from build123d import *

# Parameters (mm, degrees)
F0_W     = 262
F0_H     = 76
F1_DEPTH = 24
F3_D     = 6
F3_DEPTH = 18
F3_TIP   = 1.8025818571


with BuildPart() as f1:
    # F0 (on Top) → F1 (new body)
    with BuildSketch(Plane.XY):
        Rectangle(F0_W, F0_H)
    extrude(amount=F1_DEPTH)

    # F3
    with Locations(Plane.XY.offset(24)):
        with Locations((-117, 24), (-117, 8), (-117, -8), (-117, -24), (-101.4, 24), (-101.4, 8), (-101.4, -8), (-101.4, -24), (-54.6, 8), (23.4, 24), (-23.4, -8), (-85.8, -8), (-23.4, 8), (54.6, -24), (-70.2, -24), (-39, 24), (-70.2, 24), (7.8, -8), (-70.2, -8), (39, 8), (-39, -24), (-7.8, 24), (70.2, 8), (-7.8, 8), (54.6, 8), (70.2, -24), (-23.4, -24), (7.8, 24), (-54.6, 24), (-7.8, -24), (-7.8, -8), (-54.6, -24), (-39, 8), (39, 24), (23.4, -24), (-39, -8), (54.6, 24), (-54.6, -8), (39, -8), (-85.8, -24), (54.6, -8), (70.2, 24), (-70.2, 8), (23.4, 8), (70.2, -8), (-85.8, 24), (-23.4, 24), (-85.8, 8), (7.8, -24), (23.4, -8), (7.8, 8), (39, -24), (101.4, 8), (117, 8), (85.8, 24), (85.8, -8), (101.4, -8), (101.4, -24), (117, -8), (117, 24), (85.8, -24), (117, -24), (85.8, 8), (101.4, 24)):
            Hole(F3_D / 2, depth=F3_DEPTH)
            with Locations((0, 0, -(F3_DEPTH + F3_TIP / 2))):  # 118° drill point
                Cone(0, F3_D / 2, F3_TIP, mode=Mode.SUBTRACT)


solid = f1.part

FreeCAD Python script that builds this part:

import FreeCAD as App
import Part
import Sketcher
from FreeCAD import Vector
Q = App.Units.Quantity

doc = App.newDocument("Part")
body = doc.addObject("PartDesign::Body", "Body")

# Sketch on XY plane
sketch1 = body.newObject("Sketcher::SketchObject", "Sketch")
sketch1.AttachmentSupport = (doc.getObject("XY_Plane"), [""])
sketch1.MapMode = "FlatFace"
sketch1.addGeometry(Part.LineSegment(Vector(-131, 38, 0), Vector(-131, -38, 0)), False)
sketch1.addGeometry(Part.LineSegment(Vector(-131, -38, 0), Vector(131, -38, 0)), False)
sketch1.addGeometry(Part.LineSegment(Vector(131, -38, 0), Vector(131, 38, 0)), False)
sketch1.addGeometry(Part.LineSegment(Vector(131, 38, 0), Vector(-131, 38, 0)), False)
sketch1.addConstraint(Sketcher.Constraint("Coincident", 0, 2, 1, 1))
sketch1.addConstraint(Sketcher.Constraint("Coincident", 1, 2, 2, 1))
sketch1.addConstraint(Sketcher.Constraint("Coincident", 2, 2, 3, 1))
sketch1.addConstraint(Sketcher.Constraint("Coincident", 3, 2, 0, 1))
sketch1.addConstraint(Sketcher.Constraint("Vertical", 0))
sketch1.addConstraint(Sketcher.Constraint("Horizontal", 1))
sketch1.addConstraint(Sketcher.Constraint("Vertical", 2))
sketch1.addConstraint(Sketcher.Constraint("Horizontal", 3))
sketch1.addConstraint(Sketcher.Constraint("Symmetric", 0, 2, 2, 2, -1, 1))
sketch1.addConstraint(Sketcher.Constraint("DistanceX", 1, 1, 1, 2, Q("262 mm")))
sketch1.addConstraint(Sketcher.Constraint("DistanceY", 0, 2, 0, 1, Q("76 mm")))
pad1 = body.newObject("PartDesign::Pad", "Pad")
pad1.Profile = sketch1
pad1.Length = 24

# Sketch on XY plane
sketch2 = body.newObject("Sketcher::SketchObject", "Sketch001")
sketch2.AttachmentSupport = (doc.getObject("XY_Plane"), [""])
sketch2.MapMode = "FlatFace"
sketch2.AttachmentOffset = App.Placement(Vector(0, 0, 24), App.Rotation())
sketch2.addGeometry(Part.Circle(Vector(-117, 24, 0), Vector(0, 0, 1), 3), False)
sketch2.addGeometry(Part.Circle(Vector(-117, 8, 0), Vector(0, 0, 1), 3), False)
sketch2.addGeometry(Part.Circle(Vector(-117, -8, 0), Vector(0, 0, 1), 3), False)
sketch2.addGeometry(Part.Circle(Vector(-117, -24, 0), Vector(0, 0, 1), 3), False)
sketch2.addGeometry(Part.Circle(Vector(-101.4, 24, 0), Vector(0, 0, 1), 3), False)
sketch2.addGeometry(Part.Circle(Vector(-101.4, 8, 0), Vector(0, 0, 1), 3), False)
sketch2.addGeometry(Part.Circle(Vector(-101.4, -8, 0), Vector(0, 0, 1), 3), False)
sketch2.addGeometry(Part.Circle(Vector(-101.4, -24, 0), Vector(0, 0, 1), 3), False)
sketch2.addGeometry(Part.Circle(Vector(-54.6, 8, 0), Vector(0, 0, 1), 3), False)
sketch2.addGeometry(Part.Circle(Vector(23.4, 24, 0), Vector(0, 0, 1), 3), False)
sketch2.addGeometry(Part.Circle(Vector(-23.4, -8, 0), Vector(0, 0, 1), 3), False)
sketch2.addGeometry(Part.Circle(Vector(-85.8, -8, 0), Vector(0, 0, 1), 3), False)
sketch2.addGeometry(Part.Circle(Vector(-23.4, 8, 0), Vector(0, 0, 1), 3), False)
sketch2.addGeometry(Part.Circle(Vector(54.6, -24, 0), Vector(0, 0, 1), 3), False)
sketch2.addGeometry(Part.Circle(Vector(-70.2, -24, 0), Vector(0, 0, 1), 3), False)
sketch2.addGeometry(Part.Circle(Vector(-39, 24, 0), Vector(0, 0, 1), 3), False)
sketch2.addGeometry(Part.Circle(Vector(-70.2, 24, 0), Vector(0, 0, 1), 3), False)
sketch2.addGeometry(Part.Circle(Vector(7.8, -8, 0), Vector(0, 0, 1), 3), False)
sketch2.addGeometry(Part.Circle(Vector(-70.2, -8, 0), Vector(0, 0, 1), 3), False)
sketch2.addGeometry(Part.Circle(Vector(39, 8, 0), Vector(0, 0, 1), 3), False)
sketch2.addGeometry(Part.Circle(Vector(-39, -24, 0), Vector(0, 0, 1), 3), False)
sketch2.addGeometry(Part.Circle(Vector(-7.8, 24, 0), Vector(0, 0, 1), 3), False)
sketch2.addGeometry(Part.Circle(Vector(70.2, 8, 0), Vector(0, 0, 1), 3), False)
sketch2.addGeometry(Part.Circle(Vector(-7.8, 8, 0), Vector(0, 0, 1), 3), False)
sketch2.addGeometry(Part.Circle(Vector(54.6, 8, 0), Vector(0, 0, 1), 3), False)
sketch2.addGeometry(Part.Circle(Vector(70.2, -24, 0), Vector(0, 0, 1), 3), False)
sketch2.addGeometry(Part.Circle(Vector(-23.4, -24, 0), Vector(0, 0, 1), 3), False)
sketch2.addGeometry(Part.Circle(Vector(7.8, 24, 0), Vector(0, 0, 1), 3), False)
sketch2.addGeometry(Part.Circle(Vector(-54.6, 24, 0), Vector(0, 0, 1), 3), False)
sketch2.addGeometry(Part.Circle(Vector(-7.8, -24, 0), Vector(0, 0, 1), 3), False)
sketch2.addGeometry(Part.Circle(Vector(-7.8, -8, 0), Vector(0, 0, 1), 3), False)
sketch2.addGeometry(Part.Circle(Vector(-54.6, -24, 0), Vector(0, 0, 1), 3), False)
sketch2.addGeometry(Part.Circle(Vector(-39, 8, 0), Vector(0, 0, 1), 3), False)
sketch2.addGeometry(Part.Circle(Vector(39, 24, 0), Vector(0, 0, 1), 3), False)
sketch2.addGeometry(Part.Circle(Vector(23.4, -24, 0), Vector(0, 0, 1), 3), False)
sketch2.addGeometry(Part.Circle(Vector(-39, -8, 0), Vector(0, 0, 1), 3), False)
sketch2.addGeometry(Part.Circle(Vector(54.6, 24, 0), Vector(0, 0, 1), 3), False)
sketch2.addGeometry(Part.Circle(Vector(-54.6, -8, 0), Vector(0, 0, 1), 3), False)
sketch2.addGeometry(Part.Circle(Vector(39, -8, 0), Vector(0, 0, 1), 3), False)
sketch2.addGeometry(Part.Circle(Vector(-85.8, -24, 0), Vector(0, 0, 1), 3), False)
sketch2.addGeometry(Part.Circle(Vector(54.6, -8, 0), Vector(0, 0, 1), 3), False)
sketch2.addGeometry(Part.Circle(Vector(70.2, 24, 0), Vector(0, 0, 1), 3), False)
sketch2.addGeometry(Part.Circle(Vector(-70.2, 8, 0), Vector(0, 0, 1), 3), False)
sketch2.addGeometry(Part.Circle(Vector(23.4, 8, 0), Vector(0, 0, 1), 3), False)
sketch2.addGeometry(Part.Circle(Vector(70.2, -8, 0), Vector(0, 0, 1), 3), False)
sketch2.addGeometry(Part.Circle(Vector(-85.8, 24, 0), Vector(0, 0, 1), 3), False)
sketch2.addGeometry(Part.Circle(Vector(-23.4, 24, 0), Vector(0, 0, 1), 3), False)
sketch2.addGeometry(Part.Circle(Vector(-85.8, 8, 0), Vector(0, 0, 1), 3), False)
sketch2.addGeometry(Part.Circle(Vector(7.8, -24, 0), Vector(0, 0, 1), 3), False)
sketch2.addGeometry(Part.Circle(Vector(23.4, -8, 0), Vector(0, 0, 1), 3), False)
sketch2.addGeometry(Part.Circle(Vector(7.8, 8, 0), Vector(0, 0, 1), 3), False)
sketch2.addGeometry(Part.Circle(Vector(39, -24, 0), Vector(0, 0, 1), 3), False)
sketch2.addGeometry(Part.Circle(Vector(101.4, 8, 0), Vector(0, 0, 1), 3), False)
sketch2.addGeometry(Part.Circle(Vector(117, 8, 0), Vector(0, 0, 1), 3), False)
sketch2.addGeometry(Part.Circle(Vector(85.8, 24, 0), Vector(0, 0, 1), 3), False)
sketch2.addGeometry(Part.Circle(Vector(85.8, -8, 0), Vector(0, 0, 1), 3), False)
sketch2.addGeometry(Part.Circle(Vector(101.4, -8, 0), Vector(0, 0, 1), 3), False)
sketch2.addGeometry(Part.Circle(Vector(101.4, -24, 0), Vector(0, 0, 1), 3), False)
sketch2.addGeometry(Part.Circle(Vector(117, -8, 0), Vector(0, 0, 1), 3), False)
sketch2.addGeometry(Part.Circle(Vector(117, 24, 0), Vector(0, 0, 1), 3), False)
sketch2.addGeometry(Part.Circle(Vector(85.8, -24, 0), Vector(0, 0, 1), 3), False)
sketch2.addGeometry(Part.Circle(Vector(117, -24, 0), Vector(0, 0, 1), 3), False)
sketch2.addGeometry(Part.Circle(Vector(85.8, 8, 0), Vector(0, 0, 1), 3), False)
sketch2.addGeometry(Part.Circle(Vector(101.4, 24, 0), Vector(0, 0, 1), 3), False)
sketch2.addConstraint(Sketcher.Constraint("Equal", 0, 1))
sketch2.addConstraint(Sketcher.Constraint("Equal", 1, 2))
sketch2.addConstraint(Sketcher.Constraint("Equal", 2, 3))
sketch2.addConstraint(Sketcher.Constraint("Equal", 3, 4))
sketch2.addConstraint(Sketcher.Constraint("Equal", 4, 5))
sketch2.addConstraint(Sketcher.Constraint("Equal", 5, 6))
sketch2.addConstraint(Sketcher.Constraint("Equal", 6, 7))
sketch2.addConstraint(Sketcher.Constraint("Equal", 7, 8))
sketch2.addConstraint(Sketcher.Constraint("Equal", 8, 9))
sketch2.addConstraint(Sketcher.Constraint("Equal", 9, 10))
sketch2.addConstraint(Sketcher.Constraint("Equal", 10, 11))
sketch2.addConstraint(Sketcher.Constraint("Equal", 11, 12))
sketch2.addConstraint(Sketcher.Constraint("Equal", 12, 13))
sketch2.addConstraint(Sketcher.Constraint("Equal", 13, 14))
sketch2.addConstraint(Sketcher.Constraint("Equal", 14, 15))
sketch2.addConstraint(Sketcher.Constraint("Equal", 15, 16))
sketch2.addConstraint(Sketcher.Constraint("Equal", 16, 17))
sketch2.addConstraint(Sketcher.Constraint("Equal", 17, 18))
sketch2.addConstraint(Sketcher.Constraint("Equal", 18, 19))
sketch2.addConstraint(Sketcher.Constraint("Equal", 19, 20))
sketch2.addConstraint(Sketcher.Constraint("Equal", 20, 21))
sketch2.addConstraint(Sketcher.Constraint("Equal", 21, 22))
sketch2.addConstraint(Sketcher.Constraint("Equal", 22, 23))
sketch2.addConstraint(Sketcher.Constraint("Equal", 23, 24))
sketch2.addConstraint(Sketcher.Constraint("Equal", 24, 25))
sketch2.addConstraint(Sketcher.Constraint("Equal", 25, 26))
sketch2.addConstraint(Sketcher.Constraint("Equal", 26, 27))
sketch2.addConstraint(Sketcher.Constraint("Equal", 27, 28))
sketch2.addConstraint(Sketcher.Constraint("Equal", 28, 29))
sketch2.addConstraint(Sketcher.Constraint("Equal", 29, 30))
sketch2.addConstraint(Sketcher.Constraint("Equal", 30, 31))
sketch2.addConstraint(Sketcher.Constraint("Equal", 31, 32))
sketch2.addConstraint(Sketcher.Constraint("Equal", 32, 33))
sketch2.addConstraint(Sketcher.Constraint("Equal", 33, 34))
sketch2.addConstraint(Sketcher.Constraint("Equal", 34, 35))
sketch2.addConstraint(Sketcher.Constraint("Equal", 35, 36))
sketch2.addConstraint(Sketcher.Constraint("Equal", 36, 37))
sketch2.addConstraint(Sketcher.Constraint("Equal", 37, 38))
sketch2.addConstraint(Sketcher.Constraint("Equal", 38, 39))
sketch2.addConstraint(Sketcher.Constraint("Equal", 39, 40))
sketch2.addConstraint(Sketcher.Constraint("Equal", 40, 41))
sketch2.addConstraint(Sketcher.Constraint("Equal", 41, 42))
sketch2.addConstraint(Sketcher.Constraint("Equal", 42, 43))
sketch2.addConstraint(Sketcher.Constraint("Equal", 43, 44))
sketch2.addConstraint(Sketcher.Constraint("Equal", 44, 45))
sketch2.addConstraint(Sketcher.Constraint("Equal", 45, 46))
sketch2.addConstraint(Sketcher.Constraint("Equal", 46, 47))
sketch2.addConstraint(Sketcher.Constraint("Equal", 47, 48))
sketch2.addConstraint(Sketcher.Constraint("Equal", 48, 49))
sketch2.addConstraint(Sketcher.Constraint("Equal", 49, 50))
sketch2.addConstraint(Sketcher.Constraint("Equal", 50, 51))
sketch2.addConstraint(Sketcher.Constraint("Equal", 51, 52))
sketch2.addConstraint(Sketcher.Constraint("Equal", 52, 53))
sketch2.addConstraint(Sketcher.Constraint("Equal", 53, 54))
sketch2.addConstraint(Sketcher.Constraint("Equal", 54, 55))
sketch2.addConstraint(Sketcher.Constraint("Equal", 55, 56))
sketch2.addConstraint(Sketcher.Constraint("Equal", 56, 57))
sketch2.addConstraint(Sketcher.Constraint("Equal", 57, 58))
sketch2.addConstraint(Sketcher.Constraint("Equal", 58, 59))
sketch2.addConstraint(Sketcher.Constraint("Equal", 59, 60))
sketch2.addConstraint(Sketcher.Constraint("Equal", 60, 61))
sketch2.addConstraint(Sketcher.Constraint("Equal", 61, 62))
sketch2.addConstraint(Sketcher.Constraint("Equal", 62, 63))
sketch2.addConstraint(Sketcher.Constraint("Symmetric", 18, 3, 22, 3, -1, 1))
sketch2.addConstraint(Sketcher.Constraint("Symmetric", 17, 3, 23, 3, -1, 1))
sketch2.addConstraint(Sketcher.Constraint("Symmetric", 16, 3, 25, 3, -1, 1))
sketch2.addConstraint(Sketcher.Constraint("Symmetric", 9, 3, 26, 3, -1, 1))
sketch2.addConstraint(Sketcher.Constraint("Symmetric", 13, 3, 28, 3, -1, 1))
sketch2.addConstraint(Sketcher.Constraint("Symmetric", 27, 3, 29, 3, -1, 1))
sketch2.addConstraint(Sketcher.Constraint("Symmetric", 20, 3, 33, 3, -1, 1))
sketch2.addConstraint(Sketcher.Constraint("Symmetric", 19, 3, 35, 3, -1, 1))
sketch2.addConstraint(Sketcher.Constraint("Symmetric", 31, 3, 36, 3, -1, 1))
sketch2.addConstraint(Sketcher.Constraint("Symmetric", 24, 3, 37, 3, -1, 1))
sketch2.addConstraint(Sketcher.Constraint("Symmetric", 32, 3, 38, 3, -1, 1))
sketch2.addConstraint(Sketcher.Constraint("Symmetric", 8, 3, 40, 3, -1, 1))
sketch2.addConstraint(Sketcher.Constraint("Symmetric", 14, 3, 41, 3, -1, 1))
sketch2.addConstraint(Sketcher.Constraint("Symmetric", 10, 3, 43, 3, -1, 1))
sketch2.addConstraint(Sketcher.Constraint("Symmetric", 42, 3, 44, 3, -1, 1))
sketch2.addConstraint(Sketcher.Constraint("Symmetric", 34, 3, 46, 3, -1, 1))
sketch2.addConstraint(Sketcher.Constraint("Symmetric", 21, 3, 48, 3, -1, 1))
sketch2.addConstraint(Sketcher.Constraint("Symmetric", 12, 3, 49, 3, -1, 1))
sketch2.addConstraint(Sketcher.Constraint("Symmetric", 30, 3, 50, 3, -1, 1))
sketch2.addConstraint(Sketcher.Constraint("Symmetric", 15, 3, 51, 3, -1, 1))
sketch2.addConstraint(Sketcher.Constraint("Symmetric", 6, 3, 52, 3, -1, 1))
sketch2.addConstraint(Sketcher.Constraint("Symmetric", 2, 3, 53, 3, -1, 1))
sketch2.addConstraint(Sketcher.Constraint("Symmetric", 39, 3, 54, 3, -1, 1))
sketch2.addConstraint(Sketcher.Constraint("Symmetric", 47, 3, 55, 3, -1, 1))
sketch2.addConstraint(Sketcher.Constraint("Symmetric", 5, 3, 56, 3, -1, 1))
sketch2.addConstraint(Sketcher.Constraint("Symmetric", 4, 3, 57, 3, -1, 1))
sketch2.addConstraint(Sketcher.Constraint("Symmetric", 1, 3, 58, 3, -1, 1))
sketch2.addConstraint(Sketcher.Constraint("Symmetric", 3, 3, 59, 3, -1, 1))
sketch2.addConstraint(Sketcher.Constraint("Symmetric", 45, 3, 60, 3, -1, 1))
sketch2.addConstraint(Sketcher.Constraint("Symmetric", 0, 3, 61, 3, -1, 1))
sketch2.addConstraint(Sketcher.Constraint("Symmetric", 11, 3, 62, 3, -1, 1))
sketch2.addConstraint(Sketcher.Constraint("Symmetric", 7, 3, 63, 3, -1, 1))
sketch2.addConstraint(Sketcher.Constraint("Symmetric", 8, 3, 24, 3, -2))
sketch2.addConstraint(Sketcher.Constraint("Symmetric", 14, 3, 25, 3, -2))
sketch2.addConstraint(Sketcher.Constraint("Symmetric", 21, 3, 27, 3, -2))
sketch2.addConstraint(Sketcher.Constraint("Symmetric", 17, 3, 30, 3, -2))
sketch2.addConstraint(Sketcher.Constraint("Symmetric", 13, 3, 31, 3, -2))
sketch2.addConstraint(Sketcher.Constraint("Symmetric", 19, 3, 32, 3, -2))
sketch2.addConstraint(Sketcher.Constraint("Symmetric", 15, 3, 33, 3, -2))
sketch2.addConstraint(Sketcher.Constraint("Symmetric", 26, 3, 34, 3, -2))
sketch2.addConstraint(Sketcher.Constraint("Symmetric", 22, 3, 42, 3, -2))
sketch2.addConstraint(Sketcher.Constraint("Symmetric", 12, 3, 43, 3, -2))
sketch2.addConstraint(Sketcher.Constraint("Symmetric", 5, 3, 52, 3, -2))
sketch2.addConstraint(Sketcher.Constraint("Symmetric", 1, 3, 53, 3, -2))
sketch2.addConstraint(Sketcher.Constraint("Symmetric", 45, 3, 54, 3, -2))
sketch2.addConstraint(Sketcher.Constraint("Symmetric", 11, 3, 55, 3, -2))
sketch2.addConstraint(Sketcher.Constraint("Symmetric", 7, 3, 57, 3, -2))
sketch2.addConstraint(Sketcher.Constraint("Symmetric", 0, 3, 59, 3, -2))
sketch2.addConstraint(Sketcher.Constraint("Horizontal", 0, 3, 4, 3))
sketch2.addConstraint(Sketcher.Constraint("Horizontal", 1, 3, 5, 3))
sketch2.addConstraint(Sketcher.Constraint("Horizontal", 5, 3, 8, 3))
sketch2.addConstraint(Sketcher.Constraint("Horizontal", 4, 3, 9, 3))
sketch2.addConstraint(Sketcher.Constraint("Horizontal", 6, 3, 10, 3))
sketch2.addConstraint(Sketcher.Constraint("Horizontal", 10, 3, 11, 3))
sketch2.addConstraint(Sketcher.Constraint("Horizontal", 7, 3, 13, 3))
sketch2.addConstraint(Sketcher.Constraint("Horizontal", 13, 3, 14, 3))
sketch2.addConstraint(Sketcher.Constraint("Horizontal", 9, 3, 15, 3))
sketch2.addConstraint(Sketcher.Constraint("Horizontal", 11, 3, 17, 3))
sketch2.addConstraint(Sketcher.Constraint("Horizontal", 17, 3, 18, 3))
sketch2.addConstraint(Sketcher.Constraint("Horizontal", 12, 3, 19, 3))
sketch2.addConstraint(Sketcher.Constraint("Horizontal", 16, 3, 21, 3))
sketch2.addConstraint(Sketcher.Constraint("Horizontal", 34, 3, 39, 3))
sketch2.addConstraint(Sketcher.Constraint("Vertical", 0, 3, 1, 3))
sketch2.addConstraint(Sketcher.Constraint("Vertical", 4, 3, 5, 3))
sketch2.addConstraint(Sketcher.Constraint("Vertical", 16, 3, 18, 3))
sketch2.addConstraint(Sketcher.Constraint("Vertical", 21, 3, 23, 3))
sketch2.addConstraint(Sketcher.Constraint("Vertical", 13, 3, 24, 3))
sketch2.addConstraint(Sketcher.Constraint("Vertical", 12, 3, 26, 3))
sketch2.addConstraint(Sketcher.Constraint("Vertical", 20, 3, 32, 3))
sketch2.addConstraint(Sketcher.Constraint("Vertical", 11, 3, 39, 3))
sketch2.addConstraint(Sketcher.Constraint("Diameter", 0, Q("6 mm")))
sketch2.addConstraint(Sketcher.Constraint("DistanceX", 0, 3, -1, 1, Q("117 mm")))
sketch2.addConstraint(Sketcher.Constraint("DistanceY", -1, 1, 0, 3, Q("24 mm")))
sketch2.addConstraint(Sketcher.Constraint("DistanceY", -1, 1, 1, 3, Q("8 mm")))
sketch2.addConstraint(Sketcher.Constraint("DistanceX", 15, 3, -1, 1, Q("39 mm")))
sketch2.addConstraint(Sketcher.Constraint("DistanceX", 4, 3, -1, 1, Q("101.4 mm")))
sketch2.addConstraint(Sketcher.Constraint("DistanceX", 8, 3, -1, 1, Q("54.6 mm")))
sketch2.addConstraint(Sketcher.Constraint("DistanceX", -1, 1, 9, 3, Q("23.4 mm")))
sketch2.addConstraint(Sketcher.Constraint("DistanceX", 11, 3, -1, 1, Q("85.8 mm")))
sketch2.addConstraint(Sketcher.Constraint("DistanceX", 14, 3, -1, 1, Q("70.2 mm")))
sketch2.addConstraint(Sketcher.Constraint("DistanceX", -1, 1, 17, 3, Q("7.8 mm")))
doc.recompute()
hole = body.newObject("PartDesign::Hole", "Hole")
hole.Profile = sketch2
hole.ThreadType = "None"
hole.Diameter = 6
hole.DepthType = "Dimension"
hole.Depth = 18
hole.DrillPoint = "Angled"
hole.DrillPointAngle = 118

doc.recompute()
